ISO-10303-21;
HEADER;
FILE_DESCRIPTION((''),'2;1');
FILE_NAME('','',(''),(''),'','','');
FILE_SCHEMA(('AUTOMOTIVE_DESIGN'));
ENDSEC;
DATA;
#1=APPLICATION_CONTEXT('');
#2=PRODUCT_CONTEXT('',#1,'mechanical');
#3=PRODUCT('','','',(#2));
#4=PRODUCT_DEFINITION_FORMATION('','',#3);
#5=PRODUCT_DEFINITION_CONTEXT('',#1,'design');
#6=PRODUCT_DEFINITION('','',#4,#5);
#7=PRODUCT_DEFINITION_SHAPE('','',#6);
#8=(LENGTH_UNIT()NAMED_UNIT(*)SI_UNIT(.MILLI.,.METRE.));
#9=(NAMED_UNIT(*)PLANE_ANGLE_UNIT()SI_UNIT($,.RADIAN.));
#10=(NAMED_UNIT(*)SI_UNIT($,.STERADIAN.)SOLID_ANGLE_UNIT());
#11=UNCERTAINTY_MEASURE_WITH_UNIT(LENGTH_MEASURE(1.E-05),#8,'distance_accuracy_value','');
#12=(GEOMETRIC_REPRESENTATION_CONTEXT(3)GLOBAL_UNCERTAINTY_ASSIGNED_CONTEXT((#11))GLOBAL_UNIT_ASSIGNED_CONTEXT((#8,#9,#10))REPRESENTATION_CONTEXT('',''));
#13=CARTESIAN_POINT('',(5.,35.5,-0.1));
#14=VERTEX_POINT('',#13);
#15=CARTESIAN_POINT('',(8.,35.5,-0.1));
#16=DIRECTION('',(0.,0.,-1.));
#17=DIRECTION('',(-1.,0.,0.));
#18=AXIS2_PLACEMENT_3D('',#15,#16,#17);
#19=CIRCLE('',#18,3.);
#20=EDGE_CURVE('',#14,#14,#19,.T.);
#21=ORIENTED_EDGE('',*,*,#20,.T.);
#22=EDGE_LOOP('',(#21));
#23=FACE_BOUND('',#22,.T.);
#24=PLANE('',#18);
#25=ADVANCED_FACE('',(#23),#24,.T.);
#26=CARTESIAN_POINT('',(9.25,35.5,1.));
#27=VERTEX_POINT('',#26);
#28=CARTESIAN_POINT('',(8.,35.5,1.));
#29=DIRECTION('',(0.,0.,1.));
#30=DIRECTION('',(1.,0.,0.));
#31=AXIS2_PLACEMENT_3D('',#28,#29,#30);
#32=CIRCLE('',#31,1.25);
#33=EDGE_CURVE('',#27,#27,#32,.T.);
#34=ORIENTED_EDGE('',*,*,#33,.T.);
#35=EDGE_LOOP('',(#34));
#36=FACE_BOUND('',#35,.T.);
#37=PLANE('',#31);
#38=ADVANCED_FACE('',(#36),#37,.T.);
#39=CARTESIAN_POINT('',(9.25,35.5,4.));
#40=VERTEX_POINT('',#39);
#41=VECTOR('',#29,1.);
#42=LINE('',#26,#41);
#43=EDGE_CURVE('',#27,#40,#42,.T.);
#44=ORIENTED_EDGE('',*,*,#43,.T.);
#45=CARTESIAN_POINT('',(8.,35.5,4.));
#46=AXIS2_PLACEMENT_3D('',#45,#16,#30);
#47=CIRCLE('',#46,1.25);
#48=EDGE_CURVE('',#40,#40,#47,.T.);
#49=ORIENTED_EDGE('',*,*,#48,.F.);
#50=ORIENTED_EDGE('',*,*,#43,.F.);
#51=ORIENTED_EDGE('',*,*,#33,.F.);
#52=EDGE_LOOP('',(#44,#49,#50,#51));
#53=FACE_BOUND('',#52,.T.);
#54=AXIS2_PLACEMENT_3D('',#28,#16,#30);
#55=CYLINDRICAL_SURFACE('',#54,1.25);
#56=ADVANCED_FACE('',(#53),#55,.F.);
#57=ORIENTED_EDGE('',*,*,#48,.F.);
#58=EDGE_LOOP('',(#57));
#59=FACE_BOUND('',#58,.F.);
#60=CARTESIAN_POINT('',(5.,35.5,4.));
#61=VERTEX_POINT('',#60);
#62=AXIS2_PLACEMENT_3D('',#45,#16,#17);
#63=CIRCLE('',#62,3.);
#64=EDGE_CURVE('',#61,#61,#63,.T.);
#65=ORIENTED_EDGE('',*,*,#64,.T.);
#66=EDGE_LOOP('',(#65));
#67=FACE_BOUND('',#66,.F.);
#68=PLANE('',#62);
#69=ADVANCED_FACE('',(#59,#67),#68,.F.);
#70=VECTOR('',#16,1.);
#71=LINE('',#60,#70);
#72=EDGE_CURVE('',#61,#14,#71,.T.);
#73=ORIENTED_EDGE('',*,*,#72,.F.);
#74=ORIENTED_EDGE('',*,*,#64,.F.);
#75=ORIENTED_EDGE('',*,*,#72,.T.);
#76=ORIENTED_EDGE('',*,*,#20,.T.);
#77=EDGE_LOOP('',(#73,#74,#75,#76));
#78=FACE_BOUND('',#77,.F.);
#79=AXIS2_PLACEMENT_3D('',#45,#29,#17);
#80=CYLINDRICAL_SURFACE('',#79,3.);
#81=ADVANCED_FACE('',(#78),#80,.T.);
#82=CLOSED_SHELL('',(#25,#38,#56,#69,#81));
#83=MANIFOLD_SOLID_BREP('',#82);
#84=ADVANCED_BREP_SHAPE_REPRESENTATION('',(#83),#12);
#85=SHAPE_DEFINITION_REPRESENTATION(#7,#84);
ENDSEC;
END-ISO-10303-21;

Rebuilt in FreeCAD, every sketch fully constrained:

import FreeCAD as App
import Part
import Sketcher
from FreeCAD import Vector

doc = App.newDocument("Part")
body = doc.addObject("PartDesign::Body", "Body")

sketch1 = body.newObject("Sketcher::SketchObject", "Sketch")
sketch1.AttachmentSupport = (doc.getObject("YZ_Plane"), [""])
sketch1.MapMode = "FlatFace"
sketch1.AttachmentOffset = App.Placement(Vector(0, 0, 2), App.Rotation())
sketch1.addGeometry(Part.Circle(Vector(6, 26, 0), Vector(0, 0, 1), 1.25), False)
sketch1.addConstraint([
    Sketcher.Constraint("Diameter", 0, 2.5),
    Sketcher.Constraint("DistanceX", -1, 1, 0, 3, 6.0),
    Sketcher.Constraint("DistanceY", -1, 1, 0, 3, 26.0),
])
pad1 = body.newObject("PartDesign::Pad", "Pad")
pad1.Profile = sketch1
pad1.Length = 5
pad1.Reversed = True
body2 = doc.addObject("PartDesign::Body", "Body001")

sketch2 = body2.newObject("Sketcher::SketchObject", "Sketch001")
sketch2.AttachmentSupport = (doc.getObject("YZ_Plane001"), [""])
sketch2.MapMode = "FlatFace"
sketch2.AttachmentOffset = App.Placement(Vector(0, 0, -1), App.Rotation())
sketch2.addGeometry(Part.Circle(Vector(6, 26, 0), Vector(0, 0, 1), 3), False)
sketch2.addConstraint([
    Sketcher.Constraint("Diameter", 0, 6.0),
    Sketcher.Constraint("DistanceX", -1, 1, 0, 3, 6.0),
    Sketcher.Constraint("DistanceY", -1, 1, 0, 3, 26.0),
])
pad2 = body2.newObject("PartDesign::Pad", "Pad001")
pad2.Profile = sketch2
pad2.Length = 4.1
doc.recompute()

boolean = body2.newObject("PartDesign::Boolean", "Boolean")
boolean.Type = "Cut"
boolean.addObjects([body])
body3 = doc.addObject("PartDesign::Body", "Body002")
doc.recompute()

body2.Placement = App.Placement(Vector(-18, 29.5, 3), App.Rotation(Vector(0, 1, 0), 90))
boolean2 = body3.newObject("PartDesign::Boolean", "Boolean001")
boolean2.Type = "Fuse"
boolean2.addObjects([body2])

doc.recompute()
